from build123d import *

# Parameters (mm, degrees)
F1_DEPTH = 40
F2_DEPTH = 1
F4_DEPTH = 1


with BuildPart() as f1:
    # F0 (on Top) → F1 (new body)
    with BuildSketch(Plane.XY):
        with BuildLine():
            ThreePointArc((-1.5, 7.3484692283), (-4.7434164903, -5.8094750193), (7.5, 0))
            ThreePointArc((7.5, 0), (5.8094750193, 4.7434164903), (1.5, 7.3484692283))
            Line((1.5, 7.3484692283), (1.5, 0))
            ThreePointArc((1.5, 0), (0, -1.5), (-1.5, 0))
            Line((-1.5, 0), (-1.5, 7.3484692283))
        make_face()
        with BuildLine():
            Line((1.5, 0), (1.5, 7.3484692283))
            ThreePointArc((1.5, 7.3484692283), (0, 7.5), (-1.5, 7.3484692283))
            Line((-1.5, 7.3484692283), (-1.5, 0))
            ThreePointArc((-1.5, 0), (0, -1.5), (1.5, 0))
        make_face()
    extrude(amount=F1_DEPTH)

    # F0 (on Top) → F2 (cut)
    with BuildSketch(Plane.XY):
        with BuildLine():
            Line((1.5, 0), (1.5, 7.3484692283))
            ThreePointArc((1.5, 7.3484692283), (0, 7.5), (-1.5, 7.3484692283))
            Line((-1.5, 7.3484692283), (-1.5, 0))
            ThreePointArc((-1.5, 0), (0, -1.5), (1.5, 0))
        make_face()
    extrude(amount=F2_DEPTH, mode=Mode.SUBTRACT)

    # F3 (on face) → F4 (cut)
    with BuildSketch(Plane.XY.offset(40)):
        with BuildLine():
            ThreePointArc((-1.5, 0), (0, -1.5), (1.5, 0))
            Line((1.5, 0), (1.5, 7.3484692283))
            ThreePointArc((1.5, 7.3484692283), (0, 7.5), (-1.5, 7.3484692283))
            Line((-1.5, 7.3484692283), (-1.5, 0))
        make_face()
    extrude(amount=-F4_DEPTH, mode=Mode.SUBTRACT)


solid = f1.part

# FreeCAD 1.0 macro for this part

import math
import FreeCAD as App
import Part
import Sketcher
from FreeCAD import Vector

doc = App.newDocument("Part")
params = doc.addObject("Spreadsheet::Sheet", "Params")
for row, (alias, value) in enumerate([
    ("sketch1_radius", "7.5 mm"),
    ("pad1_length", "40 mm"),
    ("sketch2_radius", "7.5 mm"),
    ("sketch2_radius2", "1.5 mm"),
    ("pocket1_length", "1 mm"),
    ("sketch3_radius", "1.5 mm"),
    ("sketch3_radius2", "7.5 mm"),
    ("pocket2_length", "1 mm"),
], start=1):
    params.set(f"A{row}", alias)
    params.set(f"B{row}", "=" + value)
    params.setAlias(f"B{row}", alias)

body = doc.addObject("PartDesign::Body", "Body")

# Sketch on XY plane
sketch1 = doc.addObject("Sketcher::SketchObject", "Sketch")
body.addObject(sketch1)
sketch1.AttachmentSupport = (doc.XY_Plane, [""])
sketch1.MapMode = "FlatFace"
sketch1.addGeometry([
    Part.ArcOfCircle(Part.Circle(Vector(0, 0, 0), Vector(0, 0, 1), 7.5), math.radians(102), math.radians(360)),
    Part.ArcOfCircle(Part.Circle(Vector(0, 0, 0), Vector(0, 0, 1), 7.5), math.radians(0), math.radians(78)),
    Part.ArcOfCircle(Part.Circle(Vector(0, 0, 0), Vector(0, 0, 1), 7.5), math.radians(78), math.radians(102)),
], False)
sketch1.addConstraint([
    Sketcher.Constraint("Tangent", 0, 2, 1, 1),
    Sketcher.Constraint("Tangent", 1, 2, 2, 1),
    Sketcher.Constraint("Tangent", 2, 2, 0, 1),
    Sketcher.Constraint("Coincident", 0, 3, -1, 1),
    Sketcher.Constraint("PointOnObject", 0, 2, -1),
    Sketcher.Constraint("Horizontal", 1, 2, 2, 2),
    Sketcher.Constraint("Radius", 0, 7.5),
    Sketcher.Constraint("DistanceX", 1, 2, 0, 2, 6.0),
])
sketch1.setExpression("Constraints[6]", "Params.sketch1_radius")
pad1 = doc.addObject("PartDesign::Pad", "Pad")
body.addObject(pad1)
pad1.Profile = sketch1
pad1.setExpression("Length", "Params.pad1_length")

# Sketch on XY plane
sketch2 = doc.addObject("Sketcher::SketchObject", "Sketch001")
body.addObject(sketch2)
sketch2.AttachmentSupport = (doc.XY_Plane, [""])
sketch2.MapMode = "FlatFace"
sketch2.addGeometry([
    Part.LineSegment(Vector(1.5, 0, 0), Vector(1.5, 7.3, 0)),
    Part.ArcOfCircle(Part.Circle(Vector(0, 0, 0), Vector(0, 0, 1), 7.5), math.radians(78), math.radians(102)),
    Part.LineSegment(Vector(-1.5, 7.3, 0), Vector(-1.5, 0, 0)),
    Part.ArcOfCircle(Part.Circle(Vector(0, 0, 0), Vector(0, 0, 1), 1.5), math.radians(180), math.radians(360)),
], False)
sketch2.addConstraint([
    Sketcher.Constraint("Coincident", 0, 2, 1, 1),
    Sketcher.Constraint("Coincident", 1, 2, 2, 1),
    Sketcher.Constraint("Tangent", 2, 2, 3, 1),
    Sketcher.Constraint("Tangent", 3, 2, 0, 1),
    Sketcher.Constraint("Vertical", 0),
    Sketcher.Constraint("Vertical", 2),
    Sketcher.Constraint("Coincident", 1, 3, -1, 1),
    Sketcher.Constraint("Coincident", 3, 3, -1, 1),
    Sketcher.Constraint("Radius", 1, 7.5),
    Sketcher.Constraint("Radius", 3, 1.5),
])
sketch2.setExpression("Constraints[8]", "Params.sketch2_radius")
sketch2.setExpression("Constraints[9]", "Params.sketch2_radius2")
pocket1 = doc.addObject("PartDesign::Pocket", "Pocket")
body.addObject(pocket1)
pocket1.Profile = sketch2
pocket1.setExpression("Length", "Params.pocket1_length")
pocket1.Reversed = True

# Sketch on XY plane
sketch3 = doc.addObject("Sketcher::SketchObject", "Sketch002")
body.addObject(sketch3)
sketch3.AttachmentSupport = (doc.XY_Plane, [""])
sketch3.MapMode = "FlatFace"
sketch3.AttachmentOffset = App.Placement(Vector(0, 0, 40), App.Rotation())
sketch3.addGeometry([
    Part.ArcOfCircle(Part.Circle(Vector(0, 0, 0), Vector(0, 0, 1), 1.5), math.radians(180), math.radians(360)),
    Part.LineSegment(Vector(1.5, 0, 0), Vector(1.5, 7.3, 0)),
    Part.ArcOfCircle(Part.Circle(Vector(0, 0, 0), Vector(0, 0, 1), 7.5), math.radians(78), math.radians(102)),
    Part.LineSegment(Vector(-1.5, 7.3, 0), Vector(-1.5, 0, 0)),
], False)
sketch3.addConstraint([
    Sketcher.Constraint("Tangent", 0, 2, 1, 1),
    Sketcher.Constraint("Coincident", 1, 2, 2, 1),
    Sketcher.Constraint("Coincident", 2, 2, 3, 1),
    Sketcher.Constraint("Tangent", 3, 2, 0, 1),
    Sketcher.Constraint("Vertical", 1),
    Sketcher.Constraint("Vertical", 3),
    Sketcher.Constraint("Coincident", 0, 3, -1, 1),
    Sketcher.Constraint("Coincident", 2, 3, -1, 1),
    Sketcher.Constraint("Radius", 0, 1.5),
    Sketcher.Constraint("Radius", 2, 7.5),
])
sketch3.setExpression("Constraints[8]", "Params.sketch3_radius")
sketch3.setExpression("Constraints[9]", "Params.sketch3_radius2")
pocket2 = doc.addObject("PartDesign::Pocket", "Pocket001")
body.addObject(pocket2)
pocket2.Profile = sketch3
pocket2.setExpression("Length", "Params.pocket2_length")

doc.recompute()
